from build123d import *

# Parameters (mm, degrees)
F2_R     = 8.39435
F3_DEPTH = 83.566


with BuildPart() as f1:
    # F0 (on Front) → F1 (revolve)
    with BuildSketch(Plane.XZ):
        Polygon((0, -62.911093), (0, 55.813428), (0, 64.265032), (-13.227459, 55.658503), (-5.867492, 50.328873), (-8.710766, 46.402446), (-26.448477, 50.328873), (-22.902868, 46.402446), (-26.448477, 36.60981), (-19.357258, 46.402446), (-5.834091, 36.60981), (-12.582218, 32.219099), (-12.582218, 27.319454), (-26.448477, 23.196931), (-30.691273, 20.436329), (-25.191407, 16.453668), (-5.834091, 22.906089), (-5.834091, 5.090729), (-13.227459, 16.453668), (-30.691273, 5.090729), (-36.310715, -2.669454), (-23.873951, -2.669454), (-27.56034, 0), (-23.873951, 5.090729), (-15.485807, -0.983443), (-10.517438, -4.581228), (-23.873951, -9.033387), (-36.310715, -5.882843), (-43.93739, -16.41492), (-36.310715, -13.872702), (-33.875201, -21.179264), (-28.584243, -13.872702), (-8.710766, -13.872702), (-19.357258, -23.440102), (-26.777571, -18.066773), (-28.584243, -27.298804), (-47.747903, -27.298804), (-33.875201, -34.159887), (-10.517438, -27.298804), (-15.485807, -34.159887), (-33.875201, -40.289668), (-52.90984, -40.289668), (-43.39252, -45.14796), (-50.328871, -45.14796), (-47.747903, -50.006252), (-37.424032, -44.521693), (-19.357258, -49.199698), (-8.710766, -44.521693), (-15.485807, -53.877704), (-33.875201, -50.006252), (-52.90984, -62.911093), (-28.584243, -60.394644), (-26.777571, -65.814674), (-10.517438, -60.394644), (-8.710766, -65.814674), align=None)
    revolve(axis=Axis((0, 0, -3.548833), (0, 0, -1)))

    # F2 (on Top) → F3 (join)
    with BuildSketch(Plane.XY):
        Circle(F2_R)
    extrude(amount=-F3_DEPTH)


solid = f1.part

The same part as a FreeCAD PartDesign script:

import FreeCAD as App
import Part
import Sketcher
Q = App.Units.Quantity

doc = App.newDocument("Part")
body = doc.addObject("PartDesign::Body", "Body")

sketch1 = body.newObject("Sketcher::SketchObject", "Sketch")
sketch1.AttachmentSupport = (doc.getObject("XZ_Plane"), [""])
sketch1.MapMode = "FlatFace"
sketch1.addGeometry([
    Part.LineSegment(App.Vector(0, -62.9, 0), App.Vector(0, 64.3, 0)),
    Part.LineSegment(App.Vector(0, 64.3, 0), App.Vector(-13.2, 55.7, 0)),
    Part.LineSegment(App.Vector(-13.2, 55.7, 0), App.Vector(-5.9, 50.3, 0)),
    Part.LineSegment(App.Vector(-5.9, 50.3, 0), App.Vector(-8.7, 46.4, 0)),
    Part.LineSegment(App.Vector(-8.7, 46.4, 0), App.Vector(-26.4, 50.3, 0)),
    Part.LineSegment(App.Vector(-26.4, 50.3, 0), App.Vector(-22.9, 46.4, 0)),
    Part.LineSegment(App.Vector(-22.9, 46.4, 0), App.Vector(-26.4, 36.6, 0)),
    Part.LineSegment(App.Vector(-26.4, 36.6, 0), App.Vector(-19.4, 46.4, 0)),
    Part.LineSegment(App.Vector(-19.4, 46.4, 0), App.Vector(-5.8, 36.6, 0)),
    Part.LineSegment(App.Vector(-5.8, 36.6, 0), App.Vector(-12.6, 32.2, 0)),
    Part.LineSegment(App.Vector(-12.6, 32.2, 0), App.Vector(-12.6, 27.3, 0)),
    Part.LineSegment(App.Vector(-12.6, 27.3, 0), App.Vector(-26.4, 23.2, 0)),
    Part.LineSegment(App.Vector(-26.4, 23.2, 0), App.Vector(-30.7, 20.4, 0)),
    Part.LineSegment(App.Vector(-30.7, 20.4, 0), App.Vector(-25.2, 16.5, 0)),
    Part.LineSegment(App.Vector(-25.2, 16.5, 0), App.Vector(-5.8, 22.9, 0)),
    Part.LineSegment(App.Vector(-5.8, 22.9, 0), App.Vector(-5.8, 5.1, 0)),
    Part.LineSegment(App.Vector(-5.8, 5.1, 0), App.Vector(-13.2, 16.5, 0)),
    Part.LineSegment(App.Vector(-13.2, 16.5, 0), App.Vector(-30.7, 5.1, 0)),
    Part.LineSegment(App.Vector(-30.7, 5.1, 0), App.Vector(-36.3, -2.7, 0)),
    Part.LineSegment(App.Vector(-36.3, -2.7, 0), App.Vector(-23.9, -2.7, 0)),
    Part.LineSegment(App.Vector(-23.9, -2.7, 0), App.Vector(-27.6, 0, 0)),
    Part.LineSegment(App.Vector(-27.6, 0, 0), App.Vector(-23.9, 5.1, 0)),
    Part.LineSegment(App.Vector(-23.9, 5.1, 0), App.Vector(-15.5, -1, 0)),
    Part.LineSegment(App.Vector(-15.5, -1, 0), App.Vector(-10.5, -4.6, 0)),
    Part.LineSegment(App.Vector(-10.5, -4.6, 0), App.Vector(-23.9, -9, 0)),
    Part.LineSegment(App.Vector(-23.9, -9, 0), App.Vector(-36.3, -5.9, 0)),
    Part.LineSegment(App.Vector(-36.3, -5.9, 0), App.Vector(-43.9, -16.4, 0)),
    Part.LineSegment(App.Vector(-43.9, -16.4, 0), App.Vector(-36.3, -13.9, 0)),
    Part.LineSegment(App.Vector(-36.3, -13.9, 0), App.Vector(-33.9, -21.2, 0)),
    Part.LineSegment(App.Vector(-33.9, -21.2, 0), App.Vector(-28.6, -13.9, 0)),
    Part.LineSegment(App.Vector(-28.6, -13.9, 0), App.Vector(-8.7, -13.9, 0)),
    Part.LineSegment(App.Vector(-8.7, -13.9, 0), App.Vector(-19.4, -23.4, 0)),
    Part.LineSegment(App.Vector(-19.4, -23.4, 0), App.Vector(-26.8, -18.1, 0)),
    Part.LineSegment(App.Vector(-26.8, -18.1, 0), App.Vector(-28.6, -27.3, 0)),
    Part.LineSegment(App.Vector(-28.6, -27.3, 0), App.Vector(-47.7, -27.3, 0)),
    Part.LineSegment(App.Vector(-47.7, -27.3, 0), App.Vector(-33.9, -34.2, 0)),
    Part.LineSegment(App.Vector(-33.9, -34.2, 0), App.Vector(-10.5, -27.3, 0)),
    Part.LineSegment(App.Vector(-10.5, -27.3, 0), App.Vector(-15.5, -34.2, 0)),
    Part.LineSegment(App.Vector(-15.5, -34.2, 0), App.Vector(-33.9, -40.3, 0)),
    Part.LineSegment(App.Vector(-33.9, -40.3, 0), App.Vector(-52.9, -40.3, 0)),
    Part.LineSegment(App.Vector(-52.9, -40.3, 0), App.Vector(-43.4, -45.1, 0)),
    Part.LineSegment(App.Vector(-43.4, -45.1, 0), App.Vector(-50.3, -45.1, 0)),
    Part.LineSegment(App.Vector(-50.3, -45.1, 0), App.Vector(-47.7, -50, 0)),
    Part.LineSegment(App.Vector(-47.7, -50, 0), App.Vector(-37.4, -44.5, 0)),
    Part.LineSegment(App.Vector(-37.4, -44.5, 0), App.Vector(-19.4, -49.2, 0)),
    Part.LineSegment(App.Vector(-19.4, -49.2, 0), App.Vector(-8.7, -44.5, 0)),
    Part.LineSegment(App.Vector(-8.7, -44.5, 0), App.Vector(-15.5, -53.9, 0)),
    Part.LineSegment(App.Vector(-15.5, -53.9, 0), App.Vector(-33.9, -50, 0)),
    Part.LineSegment(App.Vector(-33.9, -50, 0), App.Vector(-52.9, -62.9, 0)),
    Part.LineSegment(App.Vector(-52.9, -62.9, 0), App.Vector(-28.6, -60.4, 0)),
    Part.LineSegment(App.Vector(-28.6, -60.4, 0), App.Vector(-26.8, -65.8, 0)),
    Part.LineSegment(App.Vector(-26.8, -65.8, 0), App.Vector(-10.5, -60.4, 0)),
    Part.LineSegment(App.Vector(-10.5, -60.4, 0), App.Vector(-8.7, -65.8, 0)),
    Part.LineSegment(App.Vector(-8.7, -65.8, 0), App.Vector(0, -62.9, 0)),
], False)
sketch1.addConstraint([
    Sketcher.Constraint("Coincident", 0, 2, 1, 1),
    Sketcher.Constraint("Coincident", 1, 2, 2, 1),
    Sketcher.Constraint("Coincident", 2, 2, 3, 1),
    Sketcher.Constraint("Coincident", 3, 2, 4, 1),
    Sketcher.Constraint("Coincident", 4, 2, 5, 1),
    Sketcher.Constraint("Coincident", 5, 2, 6, 1),
    Sketcher.Constraint("Coincident", 6, 2, 7, 1),
    Sketcher.Constraint("Coincident", 7, 2, 8, 1),
    Sketcher.Constraint("Coincident", 8, 2, 9, 1),
    Sketcher.Constraint("Coincident", 9, 2, 10, 1),
    Sketcher.Constraint("Coincident", 10, 2, 11, 1),
    Sketcher.Constraint("Coincident", 11, 2, 12, 1),
    Sketcher.Constraint("Coincident", 12, 2, 13, 1),
    Sketcher.Constraint("Coincident", 13, 2, 14, 1),
    Sketcher.Constraint("Coincident", 14, 2, 15, 1),
    Sketcher.Constraint("Coincident", 15, 2, 16, 1),
    Sketcher.Constraint("Coincident", 16, 2, 17, 1),
    Sketcher.Constraint("Coincident", 17, 2, 18, 1),
    Sketcher.Constraint("Coincident", 18, 2, 19, 1),
    Sketcher.Constraint("Coincident", 19, 2, 20, 1),
    Sketcher.Constraint("Coincident", 20, 2, 21, 1),
    Sketcher.Constraint("Coincident", 21, 2, 22, 1),
    Sketcher.Constraint("Coincident", 22, 2, 23, 1),
    Sketcher.Constraint("Coincident", 23, 2, 24, 1),
    Sketcher.Constraint("Coincident", 24, 2, 25, 1),
    Sketcher.Constraint("Coincident", 25, 2, 26, 1),
    Sketcher.Constraint("Coincident", 26, 2, 27, 1),
    Sketcher.Constraint("Coincident", 27, 2, 28, 1),
    Sketcher.Constraint("Coincident", 28, 2, 29, 1),
    Sketcher.Constraint("Coincident", 29, 2, 30, 1),
    Sketcher.Constraint("Coincident", 30, 2, 31, 1),
    Sketcher.Constraint("Coincident", 31, 2, 32, 1),
    Sketcher.Constraint("Coincident", 32, 2, 33, 1),
    Sketcher.Constraint("Coincident", 33, 2, 34, 1),
    Sketcher.Constraint("Coincident", 34, 2, 35, 1),
    Sketcher.Constraint("Coincident", 35, 2, 36, 1),
    Sketcher.Constraint("Coincident", 36, 2, 37, 1),
    Sketcher.Constraint("Coincident", 37, 2, 38, 1),
    Sketcher.Constraint("Coincident", 38, 2, 39, 1),
    Sketcher.Constraint("Coincident", 39, 2, 40, 1),
    Sketcher.Constraint("Coincident", 40, 2, 41, 1),
    Sketcher.Constraint("Coincident", 41, 2, 42, 1),
    Sketcher.Constraint("Coincident", 42, 2, 43, 1),
    Sketcher.Constraint("Coincident", 43, 2, 44, 1),
    Sketcher.Constraint("Coincident", 44, 2, 45, 1),
    Sketcher.Constraint("Coincident", 45, 2, 46, 1),
    Sketcher.Constraint("Coincident", 46, 2, 47, 1),
    Sketcher.Constraint("Coincident", 47, 2, 48, 1),
    Sketcher.Constraint("Coincident", 48, 2, 49, 1),
    Sketcher.Constraint("Coincident", 49, 2, 50, 1),
    Sketcher.Constraint("Coincident", 50, 2, 51, 1),
    Sketcher.Constraint("Coincident", 51, 2, 52, 1),
    Sketcher.Constraint("Coincident", 52, 2, 53, 1),
    Sketcher.Constraint("Coincident", 53, 2, 0, 1),
    Sketcher.Constraint("Vertical", 0),
    Sketcher.Constraint("Vertical", 10),
    Sketcher.Constraint("Vertical", 15),
    Sketcher.Constraint("Horizontal", 19),
    Sketcher.Constraint("Horizontal", 30),
    Sketcher.Constraint("Horizontal", 34),
    Sketcher.Constraint("Horizontal", 39),
    Sketcher.Constraint("Horizontal", 41),
    Sketcher.Constraint("PointOnObject", 0, 2, -2),
    Sketcher.Constraint("PointOnObject", 20, 2, -1),
    Sketcher.Constraint("Perpendicular", 2, 3),
    Sketcher.Constraint("Parallel", 3, 7),
    Sketcher.Constraint("Perpendicular", 7, 8),
    Sketcher.Constraint("Parallel", 1, 9),
    Sketcher.Constraint("Parallel", 9, 12),
    Sketcher.Constraint("Parallel", 8, 13),
    Sketcher.Constraint("Perpendicular", 12, 16),
    Sketcher.Constraint("Perpendicular", 16, 17),
    Sketcher.Constraint("Perpendicular", 13, 18),
    Sketcher.Constraint("Perpendicular", 18, 20),
    Sketcher.Constraint("Perpendicular", 20, 21),
    Sketcher.Constraint("Perpendicular", 21, 22),
    Sketcher.Constraint("Parallel", 22, 23),
    Sketcher.Constraint("Parallel", 14, 24),
    Sketcher.Constraint("Perpendicular", 23, 26),
    Sketcher.Constraint("Parallel", 24, 27),
    Sketcher.Constraint("Perpendicular", 27, 28),
    Sketcher.Constraint("Parallel", 26, 29),
    Sketcher.Constraint("Perpendicular", 29, 32),
    Sketcher.Constraint("Perpendicular", 32, 37),
    Sketcher.Constraint("Perpendicular", 28, 38),
    Sketcher.Constraint("Perpendicular", 42, 43),
    Sketcher.Constraint("Parallel", 37, 46),
    Sketcher.Constraint("Perpendicular", 38, 50),
    Sketcher.Constraint("Perpendicular", 50, 51),
    Sketcher.Constraint("Perpendicular", 51, 52),
    Sketcher.Constraint("Perpendicular", 52, 53),
    Sketcher.Constraint("Horizontal", 2, 2, 4, 2),
    Sketcher.Constraint("Horizontal", 3, 2, 5, 2),
    Sketcher.Constraint("Horizontal", 5, 2, 7, 2),
    Sketcher.Constraint("Horizontal", 6, 2, 8, 2),
    Sketcher.Constraint("Horizontal", 13, 2, 16, 2),
    Sketcher.Constraint("Horizontal", 15, 2, 17, 2),
    Sketcher.Constraint("Horizontal", 17, 2, 21, 2),
    Sketcher.Constraint("Horizontal", 27, 2, 29, 2),
    Sketcher.Constraint("Horizontal", 34, 2, 36, 2),
    Sketcher.Constraint("Horizontal", 35, 2, 37, 2),
    Sketcher.Constraint("Horizontal", 43, 2, 45, 2),
    Sketcher.Constraint("Horizontal", 42, 2, 47, 2),
    Sketcher.Constraint("Horizontal", 49, 2, 51, 2),
    Sketcher.Constraint("Horizontal", 50, 2, 52, 2),
    Sketcher.Constraint("Horizontal", 48, 2, 53, 2),
    Sketcher.Constraint("Vertical", 4, 2, 6, 2),
    Sketcher.Constraint("Vertical", 6, 2, 11, 2),
    Sketcher.Constraint("Vertical", 8, 2, 14, 2),
    Sketcher.Constraint("Vertical", 1, 2, 16, 2),
    Sketcher.Constraint("Vertical", 12, 2, 17, 2),
    Sketcher.Constraint("Vertical", 19, 2, 21, 2),
    Sketcher.Constraint("Vertical", 21, 2, 24, 2),
    Sketcher.Constraint("Vertical", 18, 2, 25, 2),
    Sketcher.Constraint("Vertical", 25, 2, 27, 2),
    Sketcher.Constraint("Vertical", 3, 2, 30, 2),
    Sketcher.Constraint("Vertical", 7, 2, 31, 2),
    Sketcher.Constraint("Vertical", 29, 2, 33, 2),
    Sketcher.Constraint("Vertical", 28, 2, 35, 2),
    Sketcher.Constraint("Vertical", 23, 2, 36, 2),
    Sketcher.Constraint("Vertical", 22, 2, 37, 2),
    Sketcher.Constraint("Vertical", 35, 2, 38, 2),
    Sketcher.Constraint("Vertical", 34, 2, 42, 2),
    Sketcher.Constraint("Vertical", 31, 2, 44, 2),
    Sketcher.Constraint("Vertical", 30, 2, 45, 2),
    Sketcher.Constraint("Vertical", 37, 2, 46, 2),
    Sketcher.Constraint("Vertical", 38, 2, 47, 2),
    Sketcher.Constraint("Vertical", 39, 2, 48, 2),
    Sketcher.Constraint("Vertical", 33, 2, 49, 2),
    Sketcher.Constraint("Vertical", 32, 2, 50, 2),
    Sketcher.Constraint("Vertical", 36, 2, 51, 2),
    Sketcher.Constraint("Vertical", 45, 2, 52, 2),
    Sketcher.Constraint("DistanceY", 42, 2, -1, 1, Q("1.9687501 in")),
    Sketcher.Constraint("Distance", 21, Q("6.285299 mm")),
    Sketcher.Constraint("Distance", 36, Q("24.3446 mm")),
    Sketcher.Constraint("DistanceX", 34, 2, 34, 1, Q("19.16366 mm")),
    Sketcher.Constraint("DistanceX", 39, 2, 39, 1, Q("19.034639 mm")),
    Sketcher.Constraint("DistanceX", 41, 2, 41, 1, Q("6.936351 mm")),
    Sketcher.Constraint("DistanceY", 15, 2, 15, 1, Q("17.81536 mm")),
    Sketcher.Constraint("DistanceY", -1, 1, 9, 2, Q("32.219099 mm")),
    Sketcher.Constraint("DistanceX", 28, 2, -1, 1, Q("33.875201 mm")),
    Sketcher.Constraint("DistanceY", 31, 2, -1, 1, Q("23.440102 mm")),
    Sketcher.Constraint("DistanceX", 7, 2, 1, 2, Q("6.129799 mm")),
    Sketcher.Constraint("DistanceX", 2, 2, 8, 2, Q("0.033401 mm")),
    Sketcher.Constraint("DistanceY", 12, 2, 11, 2, Q("2.760602 mm")),
    Sketcher.Constraint("DistanceY", 15, 2, 11, 2, Q("18.106202 mm")),
    Sketcher.Constraint("DistanceX", 20, 2, 23, 2, Q("17.042902 mm")),
    Sketcher.Constraint("DistanceY", 31, 2, 29, 2, Q("9.5674 mm")),
    Sketcher.Constraint("DistanceY", 53, 2, 45, 2, Q("18.3894 mm")),
    Sketcher.Constraint("Distance", 1, Q("15.780938 mm")),
    Sketcher.Constraint("Distance", 4, Q("18.167092 mm")),
    Sketcher.Constraint("Distance", 8, Q("16.69646 mm")),
    Sketcher.Constraint("Distance", 9, Q("8.050811 mm")),
    Sketcher.Constraint("Distance", 11, Q("14.46611 mm")),
    Sketcher.Constraint("Distance", 12, Q("5.061842 mm")),
    Sketcher.Constraint("Distance", 27, Q("8.039219 mm")),
    Sketcher.Constraint("Distance", 33, Q("9.407149 mm")),
    Sketcher.Constraint("Distance", 42, Q("5.501309 mm")),
    Sketcher.Constraint("Distance", 45, Q("11.628909 mm")),
    Sketcher.Constraint("Distance", 48, Q("22.996791 mm")),
    Sketcher.Constraint("DistanceX", 5, 2, -1, 1, Q("22.902868 mm")),
    Sketcher.Constraint("DistanceX", 40, 2, -1, 1, Q("43.39252 mm")),
])
revolution = body.newObject("PartDesign::Revolution", "Revolution")
revolution.Profile = sketch1
revolution.ReferenceAxis = (sketch1, ["V_Axis"])
revolution.Angle = 360

sketch2 = body.newObject("Sketcher::SketchObject", "Sketch001")
sketch2.AttachmentSupport = (doc.getObject("XY_Plane"), [""])
sketch2.MapMode = "FlatFace"
sketch2.addGeometry(Part.Circle(App.Vector(0, 0, 0), App.Vector(0, 0, 1), 8), False)
sketch2.addConstraint([
    Sketcher.Constraint("Coincident", 0, 3, -1, 1),
    Sketcher.Constraint("Diameter", 0, Q("16.7887 mm")),
])
pad1 = body.newObject("PartDesign::Pad", "Pad")
pad1.Profile = sketch2
pad1.Length = Q("3.29 in")
pad1.Reversed = True

doc.recompute()
